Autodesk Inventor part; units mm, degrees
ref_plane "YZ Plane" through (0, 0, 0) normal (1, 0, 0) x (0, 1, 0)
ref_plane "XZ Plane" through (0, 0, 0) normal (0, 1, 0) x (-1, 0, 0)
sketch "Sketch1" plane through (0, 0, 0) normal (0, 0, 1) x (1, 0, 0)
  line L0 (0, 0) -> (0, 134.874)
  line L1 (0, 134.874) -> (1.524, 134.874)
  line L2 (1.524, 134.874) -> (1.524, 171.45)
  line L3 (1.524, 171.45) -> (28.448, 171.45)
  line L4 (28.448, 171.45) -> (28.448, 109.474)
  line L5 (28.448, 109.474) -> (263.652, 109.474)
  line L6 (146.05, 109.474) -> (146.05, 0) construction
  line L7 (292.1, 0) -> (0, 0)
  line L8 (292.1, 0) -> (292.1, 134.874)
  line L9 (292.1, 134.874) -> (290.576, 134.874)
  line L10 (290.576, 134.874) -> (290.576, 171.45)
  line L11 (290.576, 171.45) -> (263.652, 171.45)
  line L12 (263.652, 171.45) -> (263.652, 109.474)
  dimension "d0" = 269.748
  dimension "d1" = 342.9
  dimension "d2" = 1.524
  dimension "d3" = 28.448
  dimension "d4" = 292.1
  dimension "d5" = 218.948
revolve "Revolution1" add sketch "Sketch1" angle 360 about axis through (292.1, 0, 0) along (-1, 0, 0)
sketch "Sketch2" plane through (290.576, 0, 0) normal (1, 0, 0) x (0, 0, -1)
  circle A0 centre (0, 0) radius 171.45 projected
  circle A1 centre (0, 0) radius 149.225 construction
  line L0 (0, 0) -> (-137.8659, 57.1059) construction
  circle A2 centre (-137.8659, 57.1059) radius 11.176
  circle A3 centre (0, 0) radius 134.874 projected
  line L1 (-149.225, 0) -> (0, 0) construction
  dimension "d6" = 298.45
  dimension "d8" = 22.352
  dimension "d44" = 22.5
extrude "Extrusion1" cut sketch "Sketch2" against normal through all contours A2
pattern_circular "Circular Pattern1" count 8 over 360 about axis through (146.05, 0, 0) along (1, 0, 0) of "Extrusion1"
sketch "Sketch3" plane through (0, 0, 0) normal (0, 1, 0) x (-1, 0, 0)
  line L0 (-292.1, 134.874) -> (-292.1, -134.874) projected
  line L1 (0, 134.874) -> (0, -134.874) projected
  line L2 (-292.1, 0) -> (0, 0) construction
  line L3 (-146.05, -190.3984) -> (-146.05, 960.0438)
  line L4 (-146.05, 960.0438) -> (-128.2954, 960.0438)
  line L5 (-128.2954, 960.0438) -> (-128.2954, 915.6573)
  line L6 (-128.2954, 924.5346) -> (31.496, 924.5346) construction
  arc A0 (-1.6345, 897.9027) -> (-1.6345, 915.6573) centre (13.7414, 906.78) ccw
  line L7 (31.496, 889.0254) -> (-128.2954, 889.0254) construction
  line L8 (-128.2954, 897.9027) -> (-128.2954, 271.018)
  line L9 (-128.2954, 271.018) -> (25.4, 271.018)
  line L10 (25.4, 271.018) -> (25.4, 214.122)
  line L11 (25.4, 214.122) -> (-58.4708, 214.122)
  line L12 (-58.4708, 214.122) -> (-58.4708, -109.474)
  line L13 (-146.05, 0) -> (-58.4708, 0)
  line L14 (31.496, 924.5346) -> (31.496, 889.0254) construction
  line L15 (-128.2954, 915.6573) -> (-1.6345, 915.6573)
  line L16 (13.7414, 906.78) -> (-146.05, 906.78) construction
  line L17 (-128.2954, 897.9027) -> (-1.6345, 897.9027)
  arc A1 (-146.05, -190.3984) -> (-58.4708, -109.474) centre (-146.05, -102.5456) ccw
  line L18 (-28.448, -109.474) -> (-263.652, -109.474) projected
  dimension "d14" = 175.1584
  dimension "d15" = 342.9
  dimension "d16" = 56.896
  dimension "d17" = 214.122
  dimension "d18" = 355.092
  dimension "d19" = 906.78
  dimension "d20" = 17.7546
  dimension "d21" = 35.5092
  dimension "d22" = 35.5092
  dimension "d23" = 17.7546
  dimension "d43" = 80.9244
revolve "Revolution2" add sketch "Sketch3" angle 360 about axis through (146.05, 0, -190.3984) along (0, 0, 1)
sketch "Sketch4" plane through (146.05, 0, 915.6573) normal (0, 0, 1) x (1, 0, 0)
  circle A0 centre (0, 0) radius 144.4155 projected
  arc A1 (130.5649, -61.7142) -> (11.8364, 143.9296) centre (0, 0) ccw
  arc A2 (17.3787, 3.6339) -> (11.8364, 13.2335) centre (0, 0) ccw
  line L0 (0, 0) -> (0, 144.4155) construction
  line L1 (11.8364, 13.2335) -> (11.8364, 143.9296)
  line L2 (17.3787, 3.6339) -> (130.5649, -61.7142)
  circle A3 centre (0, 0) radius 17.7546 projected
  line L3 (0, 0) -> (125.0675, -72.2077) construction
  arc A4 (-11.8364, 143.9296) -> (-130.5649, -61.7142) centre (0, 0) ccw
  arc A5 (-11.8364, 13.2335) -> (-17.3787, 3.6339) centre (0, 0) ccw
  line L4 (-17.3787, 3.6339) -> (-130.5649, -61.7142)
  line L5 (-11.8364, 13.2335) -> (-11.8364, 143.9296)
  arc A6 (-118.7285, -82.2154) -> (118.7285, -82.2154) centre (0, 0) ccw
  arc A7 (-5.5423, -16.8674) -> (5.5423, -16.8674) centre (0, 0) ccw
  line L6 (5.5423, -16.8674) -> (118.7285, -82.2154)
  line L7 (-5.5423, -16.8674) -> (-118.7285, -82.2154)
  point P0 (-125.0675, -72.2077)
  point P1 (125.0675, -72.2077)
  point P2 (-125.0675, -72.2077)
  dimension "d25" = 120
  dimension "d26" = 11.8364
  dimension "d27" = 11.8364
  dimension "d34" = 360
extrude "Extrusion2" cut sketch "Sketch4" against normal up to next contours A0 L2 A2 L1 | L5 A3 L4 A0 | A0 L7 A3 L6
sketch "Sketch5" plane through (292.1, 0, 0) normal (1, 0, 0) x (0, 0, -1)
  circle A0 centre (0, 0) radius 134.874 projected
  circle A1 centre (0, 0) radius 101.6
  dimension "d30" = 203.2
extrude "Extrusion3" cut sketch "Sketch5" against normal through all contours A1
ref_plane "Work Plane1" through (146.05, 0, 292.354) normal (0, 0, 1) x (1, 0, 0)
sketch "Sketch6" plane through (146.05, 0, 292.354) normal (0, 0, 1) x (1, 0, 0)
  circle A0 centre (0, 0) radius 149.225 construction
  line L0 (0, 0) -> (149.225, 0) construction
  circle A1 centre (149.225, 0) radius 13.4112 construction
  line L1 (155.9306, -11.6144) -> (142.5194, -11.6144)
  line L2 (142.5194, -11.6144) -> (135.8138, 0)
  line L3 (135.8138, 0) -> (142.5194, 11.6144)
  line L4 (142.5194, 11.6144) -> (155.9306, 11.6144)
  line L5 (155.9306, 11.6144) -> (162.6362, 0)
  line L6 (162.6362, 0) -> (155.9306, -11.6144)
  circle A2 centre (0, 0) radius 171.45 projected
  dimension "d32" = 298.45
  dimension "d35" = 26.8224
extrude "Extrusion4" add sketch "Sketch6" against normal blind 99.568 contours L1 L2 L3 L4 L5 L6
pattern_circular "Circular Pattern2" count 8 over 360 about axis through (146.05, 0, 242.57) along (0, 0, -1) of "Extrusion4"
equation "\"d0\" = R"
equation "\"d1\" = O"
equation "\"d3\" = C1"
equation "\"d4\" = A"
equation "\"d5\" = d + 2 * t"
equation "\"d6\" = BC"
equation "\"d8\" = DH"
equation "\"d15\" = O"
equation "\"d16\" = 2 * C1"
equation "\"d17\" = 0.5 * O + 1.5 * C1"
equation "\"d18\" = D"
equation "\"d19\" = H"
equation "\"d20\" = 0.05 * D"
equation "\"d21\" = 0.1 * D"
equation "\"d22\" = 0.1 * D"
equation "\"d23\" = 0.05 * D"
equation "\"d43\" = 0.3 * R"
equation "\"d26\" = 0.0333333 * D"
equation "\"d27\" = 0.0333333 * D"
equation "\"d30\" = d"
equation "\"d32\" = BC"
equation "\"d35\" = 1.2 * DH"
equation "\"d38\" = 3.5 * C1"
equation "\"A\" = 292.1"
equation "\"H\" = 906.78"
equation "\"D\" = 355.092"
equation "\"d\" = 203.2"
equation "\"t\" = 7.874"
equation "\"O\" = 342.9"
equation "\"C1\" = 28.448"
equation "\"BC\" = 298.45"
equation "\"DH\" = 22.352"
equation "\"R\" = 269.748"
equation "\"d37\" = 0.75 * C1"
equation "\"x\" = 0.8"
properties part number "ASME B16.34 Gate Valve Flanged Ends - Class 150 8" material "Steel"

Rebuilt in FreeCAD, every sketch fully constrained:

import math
import FreeCAD as App
import Part
import Sketcher

V = App.Vector
Q = App.Units.Quantity

doc = App.newDocument("Part")
body = doc.addObject("PartDesign::Body", "Body")

sketch1 = doc.addObject("Sketcher::SketchObject", "Sketch")
body.addObject(sketch1)
sketch1.AttachmentSupport = (doc.XY_Plane, [""])
sketch1.MapMode = "FlatFace"
sketch1.addGeometry(Part.LineSegment(V(0, 134.9, 0), V(0, 0, 0)), False)
sketch1.addGeometry(Part.LineSegment(V(0, 0, 0), V(292.1, 0, 0)), False)
sketch1.addGeometry(Part.LineSegment(V(292.1, 0, 0), V(292.1, 134.9, 0)), False)
sketch1.addGeometry(Part.LineSegment(V(292.1, 134.9, 0), V(290.6, 134.9, 0)), False)
sketch1.addGeometry(Part.LineSegment(V(290.6, 134.9, 0), V(290.6, 171.4, 0)), False)
sketch1.addGeometry(Part.LineSegment(V(290.6, 171.4, 0), V(263.7, 171.4, 0)), False)
sketch1.addGeometry(Part.LineSegment(V(263.7, 171.4, 0), V(263.7, 109.5, 0)), False)
sketch1.addGeometry(Part.LineSegment(V(263.7, 109.5, 0), V(28.4, 109.5, 0)), False)
sketch1.addGeometry(Part.LineSegment(V(28.4, 109.5, 0), V(28.4, 171.4, 0)), False)
sketch1.addGeometry(Part.LineSegment(V(28.4, 171.4, 0), V(1.5, 171.4, 0)), False)
sketch1.addGeometry(Part.LineSegment(V(1.5, 171.4, 0), V(1.5, 134.9, 0)), False)
sketch1.addGeometry(Part.LineSegment(V(1.5, 134.9, 0), V(0, 134.9, 0)), False)
sketch1.addConstraint(Sketcher.Constraint("Coincident", 0, 2, 1, 1))
sketch1.addConstraint(Sketcher.Constraint("Coincident", 1, 2, 2, 1))
sketch1.addConstraint(Sketcher.Constraint("Coincident", 2, 2, 3, 1))
sketch1.addConstraint(Sketcher.Constraint("Coincident", 3, 2, 4, 1))
sketch1.addConstraint(Sketcher.Constraint("Coincident", 4, 2, 5, 1))
sketch1.addConstraint(Sketcher.Constraint("Coincident", 5, 2, 6, 1))
sketch1.addConstraint(Sketcher.Constraint("Coincident", 6, 2, 7, 1))
sketch1.addConstraint(Sketcher.Constraint("Coincident", 7, 2, 8, 1))
sketch1.addConstraint(Sketcher.Constraint("Coincident", 8, 2, 9, 1))
sketch1.addConstraint(Sketcher.Constraint("Coincident", 9, 2, 10, 1))
sketch1.addConstraint(Sketcher.Constraint("Coincident", 10, 2, 11, 1))
sketch1.addConstraint(Sketcher.Constraint("Coincident", 11, 2, 0, 1))
sketch1.addConstraint(Sketcher.Constraint("Vertical", 0))
sketch1.addConstraint(Sketcher.Constraint("Horizontal", 1))
sketch1.addConstraint(Sketcher.Constraint("Vertical", 2))
sketch1.addConstraint(Sketcher.Constraint("Horizontal", 3))
sketch1.addConstraint(Sketcher.Constraint("Vertical", 4))
sketch1.addConstraint(Sketcher.Constraint("Horizontal", 5))
sketch1.addConstraint(Sketcher.Constraint("Vertical", 6))
sketch1.addConstraint(Sketcher.Constraint("Horizontal", 7))
sketch1.addConstraint(Sketcher.Constraint("Vertical", 8))
sketch1.addConstraint(Sketcher.Constraint("Horizontal", 9))
sketch1.addConstraint(Sketcher.Constraint("Vertical", 10))
sketch1.addConstraint(Sketcher.Constraint("Horizontal", 11))
sketch1.addConstraint(Sketcher.Constraint("Coincident", 0, 2, -1, 1))
sketch1.addConstraint(Sketcher.Constraint("Horizontal", 5, 2, 8, 2))
sketch1.addConstraint(Sketcher.Constraint("Horizontal", 3, 2, 10, 2))
sketch1.addConstraint(Sketcher.Constraint("Equal", 5, 9))
sketch1.addConstraint(Sketcher.Constraint("Equal", 3, 11))
sketch1.addConstraint(Sketcher.Constraint("DistanceX", 1, 1, 1, 2, Q("11.5 in")))
sketch1.addConstraint(Sketcher.Constraint("DistanceX", 3, 2, 3, 1, Q("0.06 in")))
sketch1.addConstraint(Sketcher.Constraint("DistanceX", -1, 1, 7, 2, Q("1.12 in")))
sketch1.addConstraint(Sketcher.Constraint("DistanceY", 6, 2, 3, 2, Q("1 in")))
sketch1.addConstraint(Sketcher.Constraint("DistanceY", 0, 2, 0, 1, Q("5.31 in")))
sketch1.addConstraint(Sketcher.Constraint("DistanceY", 4, 1, 4, 2, Q("1.44 in")))
revolution = doc.addObject("PartDesign::Revolution", "Revolution")
body.addObject(revolution)
revolution.Profile = sketch1
revolution.ReferenceAxis = (sketch1, ["H_Axis"])
revolution.Angle = 360

sketch2 = doc.addObject("Sketcher::SketchObject", "Sketch001")
body.addObject(sketch2)
sketch2.AttachmentSupport = (doc.YZ_Plane, [""])
sketch2.MapMode = "FlatFace"
sketch2.AttachmentOffset = App.Placement(V(0, 0, 11.44 * 25.4), App.Rotation())
sketch2.addGeometry(Part.Circle(V(57, 138, 0), V(0, 0, 1), 11), False)
sketch2.addConstraint(Sketcher.Constraint("Diameter", 0, Q("0.88 in")))
sketch2.addConstraint(Sketcher.Constraint("DistanceY", -1, 1, 0, 3, Q("5.4278 in")))
sketch2.addConstraint(Sketcher.Constraint("DistanceX", -1, 1, 0, 3, Q("57.106 mm")))
pocket1 = doc.addObject("PartDesign::Pocket", "Pocket")
body.addObject(pocket1)
pocket1.Profile = sketch2
pocket1.Type = "ThroughAll"
doc.recompute()

polarpattern = doc.addObject("PartDesign::PolarPattern", "PolarPattern")
body.addObject(polarpattern)
polarpattern.Originals = [pocket1]
polarpattern.Axis = (doc.X_Axis, [""])
polarpattern.Angle = 360
polarpattern.Occurrences = 8
body.Tip = polarpattern

sketch3 = doc.addObject("Sketcher::SketchObject", "Sketch002")
body.addObject(sketch3)
sketch3.AttachmentSupport = (doc.XZ_Plane, [""])
sketch3.MapMode = "FlatFace"
sketch3.addGeometry(Part.LineSegment(V(58, -109, 0), V(58, 214, 0)), False)
sketch3.addGeometry(Part.LineSegment(V(58, 214, 0), V(-25, 214, 0)), False)
sketch3.addGeometry(Part.LineSegment(V(-25, 214, 0), V(-25, 271, 0)), False)
sketch3.addGeometry(Part.LineSegment(V(-25, 271, 0), V(128, 271, 0)), False)
sketch3.addGeometry(Part.LineSegment(V(128, 271, 0), V(128, 898, 0)), False)
sketch3.addGeometry(Part.LineSegment(V(128, 898, 0), V(2, 898, 0)), False)
sketch3.addGeometry(Part.ArcOfCircle(Part.Circle(V(-14, 907, 0), V(0, 0, 1), 18), math.radians(30), math.radians(330)), False)
sketch3.addGeometry(Part.LineSegment(V(2, 916, 0), V(128, 916, 0)), False)
sketch3.addGeometry(Part.LineSegment(V(128, 916, 0), V(128, 960, 0)), False)
sketch3.addGeometry(Part.LineSegment(V(128, 960, 0), V(146, 960, 0)), False)
sketch3.addGeometry(Part.LineSegment(V(146, 960, 0), V(146, -190, 0)), False)
sketch3.addGeometry(Part.ArcOfCircle(Part.Circle(V(146, -103, 0), V(0, 0, 1), 88), math.radians(-175), math.radians(-90)), False)
sketch3.addGeometry(Part.LineSegment(V(146, -190, 0), V(146, 960, 0)), True)
sketch3.addConstraint(Sketcher.Constraint("Coincident", 0, 2, 1, 1))
sketch3.addConstraint(Sketcher.Constraint("Coincident", 1, 2, 2, 1))
sketch3.addConstraint(Sketcher.Constraint("Coincident", 2, 2, 3, 1))
sketch3.addConstraint(Sketcher.Constraint("Coincident", 3, 2, 4, 1))
sketch3.addConstraint(Sketcher.Constraint("Coincident", 4, 2, 5, 1))
sketch3.addConstraint(Sketcher.Constraint("Coincident", 5, 2, 6, 2))
sketch3.addConstraint(Sketcher.Constraint("Coincident", 6, 1, 7, 1))
sketch3.addConstraint(Sketcher.Constraint("Coincident", 7, 2, 8, 1))
sketch3.addConstraint(Sketcher.Constraint("Coincident", 8, 2, 9, 1))
sketch3.addConstraint(Sketcher.Constraint("Coincident", 9, 2, 10, 1))
sketch3.addConstraint(Sketcher.Constraint("Coincident", 10, 2, 11, 2))
sketch3.addConstraint(Sketcher.Constraint("Coincident", 11, 1, 0, 1))
sketch3.addConstraint(Sketcher.Constraint("Vertical", 0))
sketch3.addConstraint(Sketcher.Constraint("Horizontal", 1))
sketch3.addConstraint(Sketcher.Constraint("Vertical", 2))
sketch3.addConstraint(Sketcher.Constraint("Horizontal", 3))
sketch3.addConstraint(Sketcher.Constraint("Vertical", 4))
sketch3.addConstraint(Sketcher.Constraint("Horizontal", 5))
sketch3.addConstraint(Sketcher.Constraint("Horizontal", 7))
sketch3.addConstraint(Sketcher.Constraint("Vertical", 8))
sketch3.addConstraint(Sketcher.Constraint("Horizontal", 9))
sketch3.addConstraint(Sketcher.Constraint("Vertical", 10))
sketch3.addConstraint(Sketcher.Constraint("Vertical", 12))
sketch3.addConstraint(Sketcher.Constraint("Coincident", 12, 1, 10, 2))
sketch3.addConstraint(Sketcher.Constraint("Horizontal", 8, 2, 12, 2))
sketch3.addConstraint(Sketcher.Constraint("Vertical", 5, 2, 6, 1))
sketch3.addConstraint(Sketcher.Constraint("Vertical", 4, 2, 7, 2))
sketch3.addConstraint(Sketcher.Constraint("Vertical", 11, 3, 9, 2))
sketch3.addConstraint(Sketcher.Constraint("Radius", 6, Q("0.699 in")))
sketch3.addConstraint(Sketcher.Constraint("DistanceY", 2, 1, 2, 2, Q("2.24 in")))
sketch3.addConstraint(Sketcher.Constraint("DistanceY", -1, 1, 6, 3, Q("35.7 in")))
sketch3.addConstraint(Sketcher.Constraint("DistanceX", 9, 1, 9, 2, Q("0.699 in")))
sketch3.addConstraint(Sketcher.Constraint("DistanceY", -1, 1, 0, 2, Q("8.43 in")))
sketch3.addConstraint(Sketcher.Constraint("DistanceX", 1, 2, -1, 1, Q("1 in")))
sketch3.addConstraint(Sketcher.Constraint("DistanceY", 5, 2, 6, 1, Q("0.699 in")))
sketch3.addConstraint(Sketcher.Constraint("DistanceY", 10, 2, 11, 1, Q("3.186 in")))
sketch3.addConstraint(Sketcher.Constraint("DistanceY", 0, 1, 0, 2, Q("12.74 in")))
sketch3.addConstraint(Sketcher.Constraint("DistanceX", 1, 2, 1, 1, Q("3.302 in")))
sketch3.addConstraint(Sketcher.Constraint("DistanceX", 3, 1, 3, 2, Q("6.051 in")))
sketch3.addConstraint(Sketcher.Constraint("DistanceY", 10, 2, 10, 1, Q("45.293 in")))
sketch3.addConstraint(Sketcher.Constraint("DistanceX", 6, 3, -1, 1, Q("0.541 in")))
revolution2 = doc.addObject("PartDesign::Revolution", "Revolution001")
body.addObject(revolution2)
revolution2.Profile = sketch3
revolution2.ReferenceAxis = (sketch3, ["Axis0"])
revolution2.Angle = 360

sketch4 = doc.addObject("Sketcher::SketchObject", "Sketch003")
body.addObject(sketch4)
sketch4.AttachmentSupport = (doc.XY_Plane, [""])
sketch4.MapMode = "FlatFace"
sketch4.AttachmentOffset = App.Placement(V(0, 0, 36.0495 * 25.4), App.Rotation())
sketch4.addGeometry(Part.ArcOfCircle(Part.Circle(V(146, 0, 0), V(0, 0, 1), 144), math.radians(-25), math.radians(85)), False)
sketch4.addGeometry(Part.LineSegment(V(158, 144, 0), V(158, 13, 0)), False)
sketch4.addGeometry(Part.ArcOfCircle(Part.Circle(V(146, 0, 0), V(0, 0, 1), 18), math.radians(12), math.radians(48)), False)
sketch4.addGeometry(Part.LineSegment(V(163, 4, 0), V(277, -62, 0)), False)
sketch4.addGeometry(Part.LineSegment(V(134, 13, 0), V(134, 144, 0)), False)
sketch4.addGeometry(Part.ArcOfCircle(Part.Circle(V(146, 0, 0), V(0, 0, 1), 144), math.radians(95), math.radians(205)), False)
sketch4.addGeometry(Part.LineSegment(V(15, -62, 0), V(129, 4, 0)), False)
sketch4.addGeometry(Part.ArcOfCircle(Part.Circle(V(146, 0, 0), V(0, 0, 1), 18), math.radians(132), math.radians(168)), False)
sketch4.addGeometry(Part.ArcOfCircle(Part.Circle(V(146, 0, 0), V(0, 0, 1), 144), math.radians(-145), math.radians(-35)), False)
sketch4.addGeometry(Part.LineSegment(V(265, -82, 0), V(152, -17, 0)), False)
sketch4.addGeometry(Part.ArcOfCircle(Part.Circle(V(146, 0, 0), V(0, 0, 1), 18), math.radians(-108), math.radians(-72)), False)
sketch4.addGeometry(Part.LineSegment(V(141, -17, 0), V(27, -82, 0)), False)
sketch4.addConstraint(Sketcher.Constraint("Coincident", 0, 2, 1, 1))
sketch4.addConstraint(Sketcher.Constraint("Coincident", 1, 2, 2, 2))
sketch4.addConstraint(Sketcher.Constraint("Coincident", 2, 1, 3, 1))
sketch4.addConstraint(Sketcher.Constraint("Coincident", 3, 2, 0, 1))
sketch4.addConstraint(Sketcher.Constraint("Coincident", 4, 2, 5, 1))
sketch4.addConstraint(Sketcher.Constraint("Coincident", 5, 2, 6, 1))
sketch4.addConstraint(Sketcher.Constraint("Coincident", 6, 2, 7, 2))
sketch4.addConstraint(Sketcher.Constraint("Coincident", 7, 1, 4, 1))
sketch4.addConstraint(Sketcher.Constraint("Coincident", 8, 2, 9, 1))
sketch4.addConstraint(Sketcher.Constraint("Coincident", 9, 2, 10, 2))
sketch4.addConstraint(Sketcher.Constraint("Coincident", 10, 1, 11, 1))
sketch4.addConstraint(Sketcher.Constraint("Coincident", 11, 2, 8, 1))
sketch4.addConstraint(Sketcher.Constraint("Vertical", 1))
sketch4.addConstraint(Sketcher.Constraint("Vertical", 4))
sketch4.addConstraint(Sketcher.Constraint("Coincident", 2, 3, 0, 3))
sketch4.addConstraint(Sketcher.Constraint("Coincident", 5, 3, 0, 3))
sketch4.addConstraint(Sketcher.Constraint("Coincident", 7, 3, 0, 3))
sketch4.addConstraint(Sketcher.Constraint("Coincident", 8, 3, 0, 3))
sketch4.addConstraint(Sketcher.Constraint("Coincident", 10, 3, 0, 3))
sketch4.addConstraint(Sketcher.Constraint("Equal", 0, 5))
sketch4.addConstraint(Sketcher.Constraint("Equal", 2, 7))
sketch4.addConstraint(Sketcher.Constraint("Equal", 5, 8))
sketch4.addConstraint(Sketcher.Constraint("Equal", 7, 10))
sketch4.addConstraint(Sketcher.Constraint("PointOnObject", 0, 3, -1))
sketch4.addConstraint(Sketcher.Constraint("Parallel", 3, 9))
sketch4.addConstraint(Sketcher.Constraint("Parallel", 6, 11))
sketch4.addConstraint(Sketcher.Constraint("Horizontal", 0, 2, 4, 2))
sketch4.addConstraint(Sketcher.Constraint("Horizontal", 3, 2, 5, 2))
sketch4.addConstraint(Sketcher.Constraint("Horizontal", 2, 1, 6, 2))
sketch4.addConstraint(Sketcher.Constraint("Horizontal", 9, 2, 10, 1))
sketch4.addConstraint(Sketcher.Constraint("Equal", 6, 9))
sketch4.addConstraint(Sketcher.Constraint("Angle", 3, Q("-30 deg")))
sketch4.addConstraint(Sketcher.Constraint("Radius", 2, Q("0.699 in")))
sketch4.addConstraint(Sketcher.Constraint("DistanceX", 0, 3, 0, 2, Q("0.466 in")))
sketch4.addConstraint(Sketcher.Constraint("DistanceX", 8, 2, 3, 2, Q("0.466 in")))
sketch4.addConstraint(Sketcher.Constraint("DistanceX", -1, 1, 0, 3, Q("5.75 in")))
sketch4.addConstraint(Sketcher.Constraint("Radius", 0, Q("144.4155 mm")))
pocket2 = doc.addObject("PartDesign::Pocket", "Pocket001")
body.addObject(pocket2)
pocket2.Profile = sketch4
pocket2.Length = Q("0.699 in")

sketch5 = doc.addObject("Sketcher::SketchObject", "Sketch004")
body.addObject(sketch5)
sketch5.AttachmentSupport = (doc.YZ_Plane, [""])
sketch5.MapMode = "FlatFace"
sketch5.AttachmentOffset = App.Placement(V(0, 0, 11.5 * 25.4), App.Rotation())
sketch5.addGeometry(Part.Circle(V(0, 0, 0), V(0, 0, 1), 102), False)
sketch5.addConstraint(Sketcher.Constraint("Coincident", 0, 3, -1, 1))
sketch5.addConstraint(Sketcher.Constraint("Diameter", 0, Q("8 in")))
pocket3 = doc.addObject("PartDesign::Pocket", "Pocket002")
body.addObject(pocket3)
pocket3.Profile = sketch5
pocket3.Type = "ThroughAll"

sketch6 = doc.addObject("Sketcher::SketchObject", "Sketch005")
body.addObject(sketch6)
sketch6.AttachmentSupport = (doc.XY_Plane, [""])
sketch6.MapMode = "FlatFace"
sketch6.AttachmentOffset = App.Placement(V(0, 0, 11.51 * 25.4), App.Rotation())
sketch6.addGeometry(Part.LineSegment(V(289, -12, 0), V(302, -12, 0)), False)
sketch6.addGeometry(Part.LineSegment(V(302, -12, 0), V(309, 0, 0)), False)
sketch6.addGeometry(Part.LineSegment(V(309, 0, 0), V(302, 12, 0)), False)
sketch6.addGeometry(Part.LineSegment(V(302, 12, 0), V(289, 12, 0)), False)
sketch6.addGeometry(Part.LineSegment(V(289, 12, 0), V(282, 0, 0)), False)
sketch6.addGeometry(Part.LineSegment(V(282, 0, 0), V(289, -12, 0)), False)
sketch6.addConstraint(Sketcher.Constraint("Coincident", 0, 2, 1, 1))
sketch6.addConstraint(Sketcher.Constraint("Coincident", 1, 2, 2, 1))
sketch6.addConstraint(Sketcher.Constraint("Coincident", 2, 2, 3, 1))
sketch6.addConstraint(Sketcher.Constraint("Coincident", 3, 2, 4, 1))
sketch6.addConstraint(Sketcher.Constraint("Coincident", 4, 2, 5, 1))
sketch6.addConstraint(Sketcher.Constraint("Coincident", 5, 2, 0, 1))
sketch6.addConstraint(Sketcher.Constraint("Horizontal", 0))
sketch6.addConstraint(Sketcher.Constraint("Horizontal", 3))
sketch6.addConstraint(Sketcher.Constraint("Symmetric", 0, 2, 2, 2, -1))
sketch6.addConstraint(Sketcher.Constraint("PointOnObject", 1, 2, -1))
sketch6.addConstraint(Sketcher.Constraint("PointOnObject", 4, 2, -1))
sketch6.addConstraint(Sketcher.Constraint("Parallel", 1, 4))
sketch6.addConstraint(Sketcher.Constraint("Parallel", 2, 5))
sketch6.addConstraint(Sketcher.Constraint("Angle", 1, Q("60 deg")))
sketch6.addConstraint(Sketcher.Constraint("DistanceX", 4, 2, 1, 2, Q("1.056 in")))
sketch6.addConstraint(Sketcher.Constraint("DistanceX", 0, 1, 0, 2, Q("0.528 in")))
sketch6.addConstraint(Sketcher.Constraint("DistanceX", -1, 1, 0, 2, Q("11.889 in")))
pad1 = doc.addObject("PartDesign::Pad", "Pad")
body.addObject(pad1)
pad1.Profile = sketch6
pad1.Length = Q("3.92 in")
pad1.Reversed = True
doc.recompute()

datumline = doc.addObject("PartDesign::Line", "DatumLine")
body.addObject(datumline)
datumline.Placement = App.Placement(V(146.05, 0, 0), App.Rotation(V(0, 0, 1), V(0, 0, 1)))
polarpattern2 = doc.addObject("PartDesign::PolarPattern", "PolarPattern001")
body.addObject(polarpattern2)
polarpattern2.Originals = [pad1]
polarpattern2.Axis = (datumline, [""])
polarpattern2.Angle = 360
polarpattern2.Occurrences = 8
body.Tip = polarpattern2

doc.recompute()
